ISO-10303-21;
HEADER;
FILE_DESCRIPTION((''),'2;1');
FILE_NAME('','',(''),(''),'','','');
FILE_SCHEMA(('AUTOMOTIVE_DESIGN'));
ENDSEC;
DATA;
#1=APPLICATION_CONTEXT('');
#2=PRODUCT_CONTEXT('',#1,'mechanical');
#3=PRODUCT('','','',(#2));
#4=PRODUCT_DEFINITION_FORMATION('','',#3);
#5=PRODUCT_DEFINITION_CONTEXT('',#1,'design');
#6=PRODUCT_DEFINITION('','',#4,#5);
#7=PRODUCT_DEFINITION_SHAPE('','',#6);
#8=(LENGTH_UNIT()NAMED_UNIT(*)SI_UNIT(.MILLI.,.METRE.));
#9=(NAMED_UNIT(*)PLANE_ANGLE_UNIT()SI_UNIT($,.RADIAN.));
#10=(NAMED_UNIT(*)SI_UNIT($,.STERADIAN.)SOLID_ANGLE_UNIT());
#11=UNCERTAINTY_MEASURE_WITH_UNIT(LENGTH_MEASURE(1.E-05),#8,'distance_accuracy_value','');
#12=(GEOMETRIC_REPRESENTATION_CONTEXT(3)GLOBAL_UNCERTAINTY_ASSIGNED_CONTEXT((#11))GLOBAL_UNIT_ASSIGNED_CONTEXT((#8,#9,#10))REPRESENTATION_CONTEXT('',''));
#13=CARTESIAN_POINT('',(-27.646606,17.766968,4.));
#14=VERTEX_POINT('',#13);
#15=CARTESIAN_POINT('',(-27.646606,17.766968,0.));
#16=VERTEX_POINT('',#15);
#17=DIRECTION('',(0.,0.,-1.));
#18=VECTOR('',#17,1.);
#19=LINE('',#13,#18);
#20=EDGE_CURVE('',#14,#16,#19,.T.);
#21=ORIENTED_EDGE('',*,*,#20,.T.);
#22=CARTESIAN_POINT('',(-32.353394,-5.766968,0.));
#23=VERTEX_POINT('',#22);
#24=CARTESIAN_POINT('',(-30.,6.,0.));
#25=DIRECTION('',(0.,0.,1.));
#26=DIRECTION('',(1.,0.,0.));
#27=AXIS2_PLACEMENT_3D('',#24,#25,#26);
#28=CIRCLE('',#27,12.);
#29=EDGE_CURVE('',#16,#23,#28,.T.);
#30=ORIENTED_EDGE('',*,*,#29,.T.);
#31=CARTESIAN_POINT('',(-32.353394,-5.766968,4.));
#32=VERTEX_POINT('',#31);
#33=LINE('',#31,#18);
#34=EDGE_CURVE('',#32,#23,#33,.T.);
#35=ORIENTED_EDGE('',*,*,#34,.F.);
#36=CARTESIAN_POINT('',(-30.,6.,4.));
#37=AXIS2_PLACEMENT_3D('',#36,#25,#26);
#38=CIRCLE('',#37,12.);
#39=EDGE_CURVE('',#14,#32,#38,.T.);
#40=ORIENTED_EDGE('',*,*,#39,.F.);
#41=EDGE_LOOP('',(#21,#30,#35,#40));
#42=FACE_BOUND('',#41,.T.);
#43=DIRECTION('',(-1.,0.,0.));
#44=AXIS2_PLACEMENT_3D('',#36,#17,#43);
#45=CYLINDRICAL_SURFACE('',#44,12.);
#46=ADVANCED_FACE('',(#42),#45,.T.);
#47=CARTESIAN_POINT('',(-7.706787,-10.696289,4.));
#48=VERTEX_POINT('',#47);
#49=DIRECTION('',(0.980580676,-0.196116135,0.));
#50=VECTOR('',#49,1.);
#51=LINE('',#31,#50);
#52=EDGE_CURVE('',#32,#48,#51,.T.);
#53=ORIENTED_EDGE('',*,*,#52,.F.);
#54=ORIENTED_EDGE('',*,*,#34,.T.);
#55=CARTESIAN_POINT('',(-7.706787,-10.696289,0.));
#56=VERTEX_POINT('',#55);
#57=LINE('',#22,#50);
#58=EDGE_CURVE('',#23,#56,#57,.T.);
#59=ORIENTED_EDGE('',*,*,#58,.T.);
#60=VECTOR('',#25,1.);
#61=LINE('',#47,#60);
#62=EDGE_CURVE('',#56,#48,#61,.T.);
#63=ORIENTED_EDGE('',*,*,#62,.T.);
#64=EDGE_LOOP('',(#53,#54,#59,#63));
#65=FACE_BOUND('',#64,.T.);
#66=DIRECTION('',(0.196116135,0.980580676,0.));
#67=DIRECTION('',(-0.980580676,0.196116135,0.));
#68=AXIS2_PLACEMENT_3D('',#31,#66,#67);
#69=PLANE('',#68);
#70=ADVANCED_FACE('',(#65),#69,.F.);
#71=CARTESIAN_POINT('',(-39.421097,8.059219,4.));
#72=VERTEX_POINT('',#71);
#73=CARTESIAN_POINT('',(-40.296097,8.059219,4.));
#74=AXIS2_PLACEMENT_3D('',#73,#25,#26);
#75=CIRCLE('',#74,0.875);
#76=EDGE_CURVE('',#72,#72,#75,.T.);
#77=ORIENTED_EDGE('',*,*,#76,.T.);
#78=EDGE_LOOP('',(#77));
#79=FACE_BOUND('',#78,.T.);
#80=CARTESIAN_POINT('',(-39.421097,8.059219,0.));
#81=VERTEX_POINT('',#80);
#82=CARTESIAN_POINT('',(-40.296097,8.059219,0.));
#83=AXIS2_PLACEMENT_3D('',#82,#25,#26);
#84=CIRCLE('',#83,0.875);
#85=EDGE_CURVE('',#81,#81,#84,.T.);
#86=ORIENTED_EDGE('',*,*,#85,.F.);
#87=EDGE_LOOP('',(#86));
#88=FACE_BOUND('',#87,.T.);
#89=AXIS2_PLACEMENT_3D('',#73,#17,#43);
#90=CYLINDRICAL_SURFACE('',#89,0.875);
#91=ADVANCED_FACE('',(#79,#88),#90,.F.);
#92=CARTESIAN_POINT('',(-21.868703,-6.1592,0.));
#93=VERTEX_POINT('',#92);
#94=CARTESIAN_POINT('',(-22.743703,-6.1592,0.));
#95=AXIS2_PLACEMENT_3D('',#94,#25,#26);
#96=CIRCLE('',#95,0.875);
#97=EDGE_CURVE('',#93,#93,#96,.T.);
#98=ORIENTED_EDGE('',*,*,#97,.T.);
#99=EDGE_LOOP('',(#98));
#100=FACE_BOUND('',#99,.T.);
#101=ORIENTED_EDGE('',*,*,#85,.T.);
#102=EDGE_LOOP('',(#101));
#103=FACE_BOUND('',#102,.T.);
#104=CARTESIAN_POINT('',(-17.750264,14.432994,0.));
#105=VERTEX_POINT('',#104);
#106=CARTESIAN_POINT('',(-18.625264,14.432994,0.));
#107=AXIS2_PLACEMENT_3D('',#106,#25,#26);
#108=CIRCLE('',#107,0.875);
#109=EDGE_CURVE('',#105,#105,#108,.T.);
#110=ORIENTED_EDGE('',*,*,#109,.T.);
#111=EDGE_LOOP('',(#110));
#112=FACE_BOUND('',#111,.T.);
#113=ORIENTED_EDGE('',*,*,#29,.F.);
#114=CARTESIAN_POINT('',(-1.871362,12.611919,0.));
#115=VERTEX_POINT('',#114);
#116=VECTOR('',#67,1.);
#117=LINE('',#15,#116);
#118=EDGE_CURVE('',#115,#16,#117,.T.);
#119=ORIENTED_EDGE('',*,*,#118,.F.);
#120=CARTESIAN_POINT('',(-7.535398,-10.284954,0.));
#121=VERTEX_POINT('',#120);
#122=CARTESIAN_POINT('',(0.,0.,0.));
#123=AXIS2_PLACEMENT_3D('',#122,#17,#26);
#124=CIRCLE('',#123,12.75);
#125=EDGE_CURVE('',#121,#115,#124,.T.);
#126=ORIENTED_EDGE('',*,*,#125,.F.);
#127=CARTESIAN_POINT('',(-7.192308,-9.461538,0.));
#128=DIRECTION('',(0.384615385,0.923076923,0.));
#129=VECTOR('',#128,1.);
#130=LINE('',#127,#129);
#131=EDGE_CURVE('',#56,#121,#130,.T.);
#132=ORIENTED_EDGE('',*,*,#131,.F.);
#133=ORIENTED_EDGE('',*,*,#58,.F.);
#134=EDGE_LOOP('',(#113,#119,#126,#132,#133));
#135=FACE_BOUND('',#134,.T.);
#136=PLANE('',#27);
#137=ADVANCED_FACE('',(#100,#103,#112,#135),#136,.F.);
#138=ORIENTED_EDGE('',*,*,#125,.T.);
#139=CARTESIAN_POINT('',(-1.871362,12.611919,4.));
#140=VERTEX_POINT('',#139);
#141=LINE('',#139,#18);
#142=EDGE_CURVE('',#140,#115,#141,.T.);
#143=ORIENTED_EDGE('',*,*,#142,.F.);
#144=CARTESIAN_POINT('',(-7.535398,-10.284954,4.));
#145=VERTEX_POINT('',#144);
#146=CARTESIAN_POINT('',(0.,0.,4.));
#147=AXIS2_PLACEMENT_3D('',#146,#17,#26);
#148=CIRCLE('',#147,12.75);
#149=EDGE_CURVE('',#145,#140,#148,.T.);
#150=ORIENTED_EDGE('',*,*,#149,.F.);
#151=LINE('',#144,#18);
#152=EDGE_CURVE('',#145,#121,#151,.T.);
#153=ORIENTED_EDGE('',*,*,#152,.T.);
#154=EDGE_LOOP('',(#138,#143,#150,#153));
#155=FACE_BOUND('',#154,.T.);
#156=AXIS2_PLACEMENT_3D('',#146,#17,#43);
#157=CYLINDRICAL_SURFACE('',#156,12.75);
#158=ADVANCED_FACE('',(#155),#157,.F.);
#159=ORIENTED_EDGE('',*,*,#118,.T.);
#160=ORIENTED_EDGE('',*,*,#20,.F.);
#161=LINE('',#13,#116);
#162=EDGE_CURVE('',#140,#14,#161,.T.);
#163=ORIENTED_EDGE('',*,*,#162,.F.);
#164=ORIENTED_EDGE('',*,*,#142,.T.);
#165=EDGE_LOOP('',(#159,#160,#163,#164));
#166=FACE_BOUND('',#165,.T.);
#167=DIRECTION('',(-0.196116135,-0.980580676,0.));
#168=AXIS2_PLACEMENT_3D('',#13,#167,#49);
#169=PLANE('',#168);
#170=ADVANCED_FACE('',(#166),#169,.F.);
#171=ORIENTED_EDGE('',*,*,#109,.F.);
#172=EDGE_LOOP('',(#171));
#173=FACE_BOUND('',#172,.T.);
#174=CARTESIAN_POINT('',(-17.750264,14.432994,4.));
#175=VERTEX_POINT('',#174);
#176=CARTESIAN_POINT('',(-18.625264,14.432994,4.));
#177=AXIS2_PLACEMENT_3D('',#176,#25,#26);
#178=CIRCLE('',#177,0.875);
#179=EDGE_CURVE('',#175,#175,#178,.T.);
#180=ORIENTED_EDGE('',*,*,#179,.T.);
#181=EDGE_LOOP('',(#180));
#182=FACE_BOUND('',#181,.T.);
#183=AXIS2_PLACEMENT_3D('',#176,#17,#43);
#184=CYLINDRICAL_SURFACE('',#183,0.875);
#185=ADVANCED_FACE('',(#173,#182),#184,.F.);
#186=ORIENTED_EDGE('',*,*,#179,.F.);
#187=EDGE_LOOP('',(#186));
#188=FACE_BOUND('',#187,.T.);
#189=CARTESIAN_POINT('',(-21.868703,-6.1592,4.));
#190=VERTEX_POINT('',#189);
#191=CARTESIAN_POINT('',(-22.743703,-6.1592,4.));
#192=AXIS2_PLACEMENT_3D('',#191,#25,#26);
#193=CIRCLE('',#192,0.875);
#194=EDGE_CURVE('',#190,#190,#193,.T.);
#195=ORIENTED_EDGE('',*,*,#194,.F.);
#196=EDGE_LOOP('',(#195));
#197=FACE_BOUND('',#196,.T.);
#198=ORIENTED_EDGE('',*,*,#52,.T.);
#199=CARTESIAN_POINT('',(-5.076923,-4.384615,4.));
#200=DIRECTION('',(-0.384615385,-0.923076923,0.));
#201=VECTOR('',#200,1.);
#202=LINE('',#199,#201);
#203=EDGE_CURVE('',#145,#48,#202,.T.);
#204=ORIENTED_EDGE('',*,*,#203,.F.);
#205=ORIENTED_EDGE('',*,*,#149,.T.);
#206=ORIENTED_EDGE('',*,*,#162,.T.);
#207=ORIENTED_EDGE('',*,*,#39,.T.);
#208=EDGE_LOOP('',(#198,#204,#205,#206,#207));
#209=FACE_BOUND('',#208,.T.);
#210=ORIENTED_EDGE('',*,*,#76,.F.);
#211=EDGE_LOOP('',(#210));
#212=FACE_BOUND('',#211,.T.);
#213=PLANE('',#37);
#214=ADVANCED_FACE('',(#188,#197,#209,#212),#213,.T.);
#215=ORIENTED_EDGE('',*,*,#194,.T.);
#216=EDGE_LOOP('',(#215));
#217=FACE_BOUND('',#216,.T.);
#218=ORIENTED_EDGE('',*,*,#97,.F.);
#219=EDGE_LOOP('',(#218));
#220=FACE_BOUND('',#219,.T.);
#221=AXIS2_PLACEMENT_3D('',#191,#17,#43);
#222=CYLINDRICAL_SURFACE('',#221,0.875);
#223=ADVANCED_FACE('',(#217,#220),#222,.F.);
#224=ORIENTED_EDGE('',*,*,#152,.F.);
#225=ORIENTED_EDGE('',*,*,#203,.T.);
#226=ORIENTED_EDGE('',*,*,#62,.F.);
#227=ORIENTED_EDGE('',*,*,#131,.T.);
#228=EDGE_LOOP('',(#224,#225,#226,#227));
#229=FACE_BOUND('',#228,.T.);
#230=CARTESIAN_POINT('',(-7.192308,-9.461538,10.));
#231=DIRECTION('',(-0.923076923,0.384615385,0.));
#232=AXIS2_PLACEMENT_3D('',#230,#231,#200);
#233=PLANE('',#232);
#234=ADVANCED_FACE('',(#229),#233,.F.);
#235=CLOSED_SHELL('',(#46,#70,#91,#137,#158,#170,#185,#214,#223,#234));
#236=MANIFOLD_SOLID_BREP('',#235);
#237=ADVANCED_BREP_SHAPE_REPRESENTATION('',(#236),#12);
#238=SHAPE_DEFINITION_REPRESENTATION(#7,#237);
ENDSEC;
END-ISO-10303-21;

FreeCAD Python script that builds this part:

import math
import FreeCAD as App
import Part
import Sketcher

V = App.Vector

doc = App.newDocument("Part")
body = doc.addObject("PartDesign::Body", "Body")

sketch1 = body.newObject("Sketcher::SketchObject", "Sketch")
sketch1.AttachmentSupport = (doc.getObject("XY_Plane"), [""])
sketch1.MapMode = "FlatFace"
sketch1.addGeometry(Part.LineSegment(V(-1.9, 12.6, 0), V(-27.6, 17.8, 0)), False)
sketch1.addGeometry(Part.ArcOfCircle(Part.Circle(V(-30, 6, 0), V(0, 0, 1), 12), math.radians(79), math.radians(259)), False)
sketch1.addGeometry(Part.LineSegment(V(-32.4, -5.8, 0), V(-6.6, -10.9, 0)), False)
sketch1.addGeometry(Part.ArcOfCircle(Part.Circle(V(0, 0, 0), V(0, 0, 1), 12.8), math.radians(98), math.radians(239)), False)
sketch1.addGeometry(Part.Circle(V(-22.7, -6.2, 0), V(0, 0, 1), 0.9), False)
sketch1.addGeometry(Part.Circle(V(-18.6, 14.4, 0), V(0, 0, 1), 0.9), False)
sketch1.addGeometry(Part.Circle(V(-40.3, 8.1, 0), V(0, 0, 1), 0.9), False)
sketch1.addConstraint(Sketcher.Constraint("Tangent", 0, 2, 1, 1))
sketch1.addConstraint(Sketcher.Constraint("Tangent", 1, 2, 2, 1))
sketch1.addConstraint(Sketcher.Constraint("Coincident", 2, 2, 3, 2))
sketch1.addConstraint(Sketcher.Constraint("Coincident", 3, 1, 0, 1))
sketch1.addConstraint(Sketcher.Constraint("Coincident", 3, 3, -1, 1))
sketch1.addConstraint(Sketcher.Constraint("Equal", 4, 5))
sketch1.addConstraint(Sketcher.Constraint("Equal", 5, 6))
sketch1.addConstraint(Sketcher.Constraint("Parallel", 0, 2))
sketch1.addConstraint(Sketcher.Constraint("Equal", 0, 2))
sketch1.addConstraint(Sketcher.Constraint("Radius", 1, 12.0))
sketch1.addConstraint(Sketcher.Constraint("Diameter", 4, 1.75))
sketch1.addConstraint(Sketcher.Constraint("Radius", 3, 12.75))
sketch1.addConstraint(Sketcher.Constraint("DistanceX", 1, 3, -1, 1, 30.0))
sketch1.addConstraint(Sketcher.Constraint("DistanceY", -1, 1, 1, 3, 6.0))
sketch1.addConstraint(Sketcher.Constraint("DistanceY", 4, 3, -1, 1, 6.1592))
sketch1.addConstraint(Sketcher.Constraint("DistanceY", -1, 1, 6, 3, 8.059219))
sketch1.addConstraint(Sketcher.Constraint("DistanceX", 4, 3, 5, 3, 4.118439))
sketch1.addConstraint(Sketcher.Constraint("DistanceX", 6, 3, 0, 2, 12.649491))
sketch1.addConstraint(Sketcher.Constraint("DistanceX", 1, 2, 4, 3, 9.609691))
sketch1.addConstraint(Sketcher.Constraint("DistanceY", 1, 2, 5, 3, 20.199962))
pad1 = body.newObject("PartDesign::Pad", "Pad")
pad1.Profile = sketch1
pad1.Length = 4

sketch2 = body.newObject("Sketcher::SketchObject", "Sketch001")
sketch2.AttachmentSupport = (doc.getObject("XY_Plane"), [""])
sketch2.MapMode = "FlatFace"
sketch2.addGeometry(Part.LineSegment(V(-8, -11.3, 0), V(-7.2, -9.5, 0)), False)
sketch2.addGeometry(Part.LineSegment(V(-7.2, -9.5, 0), V(-5.3, -10.2, 0)), False)
sketch2.addGeometry(Part.LineSegment(V(-5.3, -10.2, 0), V(-6.1, -12.1, 0)), False)
sketch2.addGeometry(Part.LineSegment(V(-6.1, -12.1, 0), V(-8, -11.3, 0)), False)
sketch2.addConstraint(Sketcher.Constraint("Coincident", 0, 2, 1, 1))
sketch2.addConstraint(Sketcher.Constraint("Coincident", 1, 2, 2, 1))
sketch2.addConstraint(Sketcher.Constraint("Coincident", 2, 2, 3, 1))
sketch2.addConstraint(Sketcher.Constraint("Coincident", 3, 2, 0, 1))
sketch2.addConstraint(Sketcher.Constraint("Perpendicular", 0, 1))
sketch2.addConstraint(Sketcher.Constraint("Perpendicular", 1, 2))
sketch2.addConstraint(Sketcher.Constraint("Perpendicular", 2, 3))
sketch2.addConstraint(Sketcher.Constraint("Equal", 0, 1))
sketch2.addConstraint(Sketcher.Constraint("Distance", 0, 2.0))
sketch2.addConstraint(Sketcher.Constraint("DistanceY", 0, 2, -1, 1, 9.461538))
sketch2.addConstraint(Sketcher.Constraint("DistanceY", 1, 2, -1, 1, 10.230769))
sketch2.addConstraint(Sketcher.Constraint("DistanceX", 3, 2, -1, 1, 7.961538))
pocket1 = body.newObject("PartDesign::Pocket", "Pocket")
pocket1.Profile = sketch2
pocket1.Length = 10
pocket1.Reversed = True

doc.recompute()
